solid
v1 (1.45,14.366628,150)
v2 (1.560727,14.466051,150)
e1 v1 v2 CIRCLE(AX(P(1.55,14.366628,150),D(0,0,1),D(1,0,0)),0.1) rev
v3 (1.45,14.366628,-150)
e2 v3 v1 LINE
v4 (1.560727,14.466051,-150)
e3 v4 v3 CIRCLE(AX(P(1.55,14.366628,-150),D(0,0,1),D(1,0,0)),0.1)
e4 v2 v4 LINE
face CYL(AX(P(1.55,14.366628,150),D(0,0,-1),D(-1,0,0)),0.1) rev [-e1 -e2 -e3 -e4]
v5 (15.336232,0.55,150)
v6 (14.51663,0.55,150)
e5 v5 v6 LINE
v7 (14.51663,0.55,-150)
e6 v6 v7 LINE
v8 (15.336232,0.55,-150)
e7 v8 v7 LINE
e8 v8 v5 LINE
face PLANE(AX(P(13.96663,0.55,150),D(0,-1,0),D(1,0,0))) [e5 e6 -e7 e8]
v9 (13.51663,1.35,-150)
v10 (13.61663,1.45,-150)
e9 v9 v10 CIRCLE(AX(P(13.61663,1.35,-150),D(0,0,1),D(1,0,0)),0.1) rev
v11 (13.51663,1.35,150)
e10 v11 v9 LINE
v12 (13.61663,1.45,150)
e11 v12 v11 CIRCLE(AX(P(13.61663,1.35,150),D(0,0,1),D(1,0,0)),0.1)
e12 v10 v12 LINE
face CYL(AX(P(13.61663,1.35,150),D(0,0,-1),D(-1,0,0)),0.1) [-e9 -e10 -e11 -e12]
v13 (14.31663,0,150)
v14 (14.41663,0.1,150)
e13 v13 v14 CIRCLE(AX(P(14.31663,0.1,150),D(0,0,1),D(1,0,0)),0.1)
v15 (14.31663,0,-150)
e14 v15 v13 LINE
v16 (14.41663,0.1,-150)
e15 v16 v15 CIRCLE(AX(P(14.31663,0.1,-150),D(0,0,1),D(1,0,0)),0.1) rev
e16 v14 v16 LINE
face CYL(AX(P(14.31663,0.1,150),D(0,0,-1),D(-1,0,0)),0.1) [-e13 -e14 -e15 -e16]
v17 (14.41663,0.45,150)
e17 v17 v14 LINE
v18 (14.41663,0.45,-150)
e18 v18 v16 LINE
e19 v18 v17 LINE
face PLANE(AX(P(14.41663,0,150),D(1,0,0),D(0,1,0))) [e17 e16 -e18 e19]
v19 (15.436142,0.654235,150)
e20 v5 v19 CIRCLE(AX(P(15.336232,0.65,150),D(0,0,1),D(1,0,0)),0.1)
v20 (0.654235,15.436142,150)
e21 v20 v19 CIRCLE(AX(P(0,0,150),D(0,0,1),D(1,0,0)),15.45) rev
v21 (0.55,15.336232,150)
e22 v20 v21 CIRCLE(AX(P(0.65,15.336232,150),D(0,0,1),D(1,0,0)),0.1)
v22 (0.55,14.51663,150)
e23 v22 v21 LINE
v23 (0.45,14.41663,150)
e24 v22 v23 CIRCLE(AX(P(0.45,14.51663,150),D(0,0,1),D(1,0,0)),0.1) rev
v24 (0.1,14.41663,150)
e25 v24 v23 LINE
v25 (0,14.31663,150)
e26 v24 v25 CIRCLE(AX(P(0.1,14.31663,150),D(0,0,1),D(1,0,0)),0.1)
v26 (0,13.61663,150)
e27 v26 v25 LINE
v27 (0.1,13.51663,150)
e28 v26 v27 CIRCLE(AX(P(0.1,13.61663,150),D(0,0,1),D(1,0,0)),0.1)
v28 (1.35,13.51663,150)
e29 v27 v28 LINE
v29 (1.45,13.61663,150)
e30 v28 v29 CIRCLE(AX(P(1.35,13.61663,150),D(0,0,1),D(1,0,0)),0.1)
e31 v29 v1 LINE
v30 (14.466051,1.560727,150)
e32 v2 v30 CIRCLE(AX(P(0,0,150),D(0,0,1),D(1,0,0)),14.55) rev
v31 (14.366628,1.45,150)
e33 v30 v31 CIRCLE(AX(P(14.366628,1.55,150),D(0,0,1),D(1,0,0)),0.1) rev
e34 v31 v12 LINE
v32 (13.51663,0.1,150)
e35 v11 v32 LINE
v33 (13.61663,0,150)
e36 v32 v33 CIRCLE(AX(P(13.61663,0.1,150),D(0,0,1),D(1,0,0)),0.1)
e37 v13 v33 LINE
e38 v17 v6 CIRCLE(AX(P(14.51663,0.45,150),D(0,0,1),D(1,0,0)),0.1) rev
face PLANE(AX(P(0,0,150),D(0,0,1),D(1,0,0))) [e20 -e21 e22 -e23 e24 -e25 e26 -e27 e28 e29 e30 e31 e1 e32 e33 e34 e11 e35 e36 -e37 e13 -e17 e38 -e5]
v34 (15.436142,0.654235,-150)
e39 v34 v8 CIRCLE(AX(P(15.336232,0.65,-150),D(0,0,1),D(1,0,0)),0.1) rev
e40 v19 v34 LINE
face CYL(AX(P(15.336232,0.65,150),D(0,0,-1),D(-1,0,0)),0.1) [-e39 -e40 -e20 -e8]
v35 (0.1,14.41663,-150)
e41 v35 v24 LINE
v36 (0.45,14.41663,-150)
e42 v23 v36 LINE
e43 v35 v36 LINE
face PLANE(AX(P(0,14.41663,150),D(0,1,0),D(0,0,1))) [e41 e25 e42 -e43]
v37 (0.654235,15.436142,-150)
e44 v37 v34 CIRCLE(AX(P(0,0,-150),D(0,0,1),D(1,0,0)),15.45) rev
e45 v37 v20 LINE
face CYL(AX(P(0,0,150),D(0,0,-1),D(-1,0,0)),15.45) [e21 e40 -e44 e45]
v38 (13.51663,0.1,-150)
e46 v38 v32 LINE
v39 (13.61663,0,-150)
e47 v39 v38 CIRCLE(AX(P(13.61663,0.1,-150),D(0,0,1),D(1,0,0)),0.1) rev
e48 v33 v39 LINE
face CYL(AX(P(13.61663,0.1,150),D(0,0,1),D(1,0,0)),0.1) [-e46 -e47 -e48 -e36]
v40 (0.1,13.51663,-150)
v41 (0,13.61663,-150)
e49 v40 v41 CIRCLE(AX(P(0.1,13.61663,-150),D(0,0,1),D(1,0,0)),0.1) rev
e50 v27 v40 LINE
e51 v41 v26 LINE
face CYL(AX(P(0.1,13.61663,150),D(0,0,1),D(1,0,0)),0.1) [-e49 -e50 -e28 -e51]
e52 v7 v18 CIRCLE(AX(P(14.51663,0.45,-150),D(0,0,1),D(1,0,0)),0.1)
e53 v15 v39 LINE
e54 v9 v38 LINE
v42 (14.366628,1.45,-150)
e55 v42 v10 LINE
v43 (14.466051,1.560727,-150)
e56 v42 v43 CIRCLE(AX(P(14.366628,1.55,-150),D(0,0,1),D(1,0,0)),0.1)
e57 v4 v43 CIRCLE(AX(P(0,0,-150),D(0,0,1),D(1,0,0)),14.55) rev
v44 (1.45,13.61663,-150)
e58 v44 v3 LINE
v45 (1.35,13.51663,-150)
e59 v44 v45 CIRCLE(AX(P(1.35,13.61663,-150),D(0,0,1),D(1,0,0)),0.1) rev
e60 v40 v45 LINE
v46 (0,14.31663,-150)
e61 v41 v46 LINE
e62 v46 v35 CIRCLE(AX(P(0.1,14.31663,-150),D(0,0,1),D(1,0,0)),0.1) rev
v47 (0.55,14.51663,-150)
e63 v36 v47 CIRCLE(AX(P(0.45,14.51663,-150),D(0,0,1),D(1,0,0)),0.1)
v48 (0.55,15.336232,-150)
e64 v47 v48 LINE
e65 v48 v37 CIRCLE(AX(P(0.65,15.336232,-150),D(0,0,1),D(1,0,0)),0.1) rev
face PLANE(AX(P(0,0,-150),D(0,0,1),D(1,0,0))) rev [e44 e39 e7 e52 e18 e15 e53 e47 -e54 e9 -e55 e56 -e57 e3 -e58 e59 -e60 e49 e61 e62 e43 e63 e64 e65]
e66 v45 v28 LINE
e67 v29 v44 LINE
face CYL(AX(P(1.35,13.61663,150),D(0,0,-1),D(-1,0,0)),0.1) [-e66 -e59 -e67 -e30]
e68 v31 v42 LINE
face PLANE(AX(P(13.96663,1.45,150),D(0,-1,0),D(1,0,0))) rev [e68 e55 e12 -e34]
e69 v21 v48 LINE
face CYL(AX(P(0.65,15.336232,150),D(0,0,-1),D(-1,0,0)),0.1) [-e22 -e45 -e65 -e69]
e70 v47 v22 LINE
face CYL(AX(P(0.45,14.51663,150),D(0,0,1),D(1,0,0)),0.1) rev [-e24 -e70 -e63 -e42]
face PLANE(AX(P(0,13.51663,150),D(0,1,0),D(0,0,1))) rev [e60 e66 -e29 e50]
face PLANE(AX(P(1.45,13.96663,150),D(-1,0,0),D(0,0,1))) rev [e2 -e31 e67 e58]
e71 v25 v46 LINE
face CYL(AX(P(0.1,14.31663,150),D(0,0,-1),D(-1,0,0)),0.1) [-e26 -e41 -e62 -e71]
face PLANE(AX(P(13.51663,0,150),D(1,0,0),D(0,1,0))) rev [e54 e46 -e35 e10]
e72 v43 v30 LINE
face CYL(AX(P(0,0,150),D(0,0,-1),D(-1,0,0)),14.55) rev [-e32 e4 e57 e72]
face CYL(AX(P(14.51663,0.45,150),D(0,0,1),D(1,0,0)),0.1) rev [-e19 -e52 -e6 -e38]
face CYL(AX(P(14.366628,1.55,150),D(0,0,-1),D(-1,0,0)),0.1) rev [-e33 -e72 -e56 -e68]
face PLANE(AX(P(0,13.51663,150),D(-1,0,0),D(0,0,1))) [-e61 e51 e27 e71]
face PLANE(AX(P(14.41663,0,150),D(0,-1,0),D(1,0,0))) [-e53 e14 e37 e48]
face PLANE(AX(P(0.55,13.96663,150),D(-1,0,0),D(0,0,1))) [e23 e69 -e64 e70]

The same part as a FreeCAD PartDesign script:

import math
import FreeCAD as App
import Part
import Sketcher
from FreeCAD import Vector


def edges_at(feature, points):
    """Names of the edges that pass closest to the given points."""
    edges = feature.Shape.Edges
    near = lambda p: min(range(len(edges)), key=lambda i: edges[i].distToShape(Part.Vertex(*p))[0])
    return sorted({f"Edge{near(p) + 1}" for p in points})

doc = App.newDocument("Part")
body = doc.addObject("PartDesign::Body", "Body")

sketch1 = body.newObject("Sketcher::SketchObject", "Sketch")
sketch1.AttachmentSupport = (doc.getObject("XY_Plane"), [""])
sketch1.MapMode = "FlatFace"
sketch1.addGeometry([
    Part.LineSegment(Vector(14.41663, 0, 0), Vector(14.41663, 0.55, 0)),
    Part.LineSegment(Vector(14.41663, 0.55, 0), Vector(15.440207, 0.55, 0)),
    Part.ArcOfCircle(Part.Circle(Vector(0, 0, 0), Vector(0, 0, 1), 15.45), math.radians(2.040087), math.radians(87.959913)),
    Part.LineSegment(Vector(0.55, 15.440207, 0), Vector(0.55, 14.41663, 0)),
    Part.LineSegment(Vector(0.55, 14.41663, 0), Vector(0, 14.41663, 0)),
    Part.LineSegment(Vector(0, 14.41663, 0), Vector(0, 13.51663, 0)),
    Part.LineSegment(Vector(0, 13.51663, 0), Vector(1.45, 13.51663, 0)),
    Part.LineSegment(Vector(1.45, 13.51663, 0), Vector(1.45, 14.477569, 0)),
    Part.ArcOfCircle(Part.Circle(Vector(0, 0, 0), Vector(0, 0, 1), 14.55), math.radians(5.719382), math.radians(84.280618)),
    Part.LineSegment(Vector(14.477569, 1.45, 0), Vector(13.51663, 1.45, 0)),
    Part.LineSegment(Vector(13.51663, 1.45, 0), Vector(13.51663, 0, 0)),
    Part.LineSegment(Vector(13.51663, 0, 0), Vector(14.41663, 0, 0)),
], False)
sketch1.addConstraint([
    Sketcher.Constraint("Coincident", 0, 2, 1, 1),
    Sketcher.Constraint("Coincident", 1, 2, 2, 1),
    Sketcher.Constraint("Coincident", 2, 2, 3, 1),
    Sketcher.Constraint("Coincident", 3, 2, 4, 1),
    Sketcher.Constraint("Coincident", 4, 2, 5, 1),
    Sketcher.Constraint("Coincident", 5, 2, 6, 1),
    Sketcher.Constraint("Coincident", 6, 2, 7, 1),
    Sketcher.Constraint("Coincident", 7, 2, 8, 2),
    Sketcher.Constraint("Coincident", 8, 1, 9, 1),
    Sketcher.Constraint("Coincident", 9, 2, 10, 1),
    Sketcher.Constraint("Coincident", 10, 2, 11, 1),
    Sketcher.Constraint("Coincident", 11, 2, 0, 1),
    Sketcher.Constraint("Vertical", 0),
    Sketcher.Constraint("Horizontal", 1),
    Sketcher.Constraint("Vertical", 3),
    Sketcher.Constraint("Horizontal", 4),
    Sketcher.Constraint("Vertical", 5),
    Sketcher.Constraint("Horizontal", 6),
    Sketcher.Constraint("Vertical", 7),
    Sketcher.Constraint("Horizontal", 9),
    Sketcher.Constraint("Vertical", 10),
    Sketcher.Constraint("Horizontal", 11),
    Sketcher.Constraint("Coincident", 2, 3, -1, 1),
    Sketcher.Constraint("Coincident", 8, 3, -1, 1),
    Sketcher.Constraint("PointOnObject", 4, 2, -2),
    Sketcher.Constraint("PointOnObject", 10, 2, -1),
    Sketcher.Constraint("Equal", 4, 0),
    Sketcher.Constraint("Equal", 1, 3),
    Sketcher.Constraint("Equal", 11, 5),
    Sketcher.Constraint("Equal", 9, 7),
    Sketcher.Constraint("Radius", 2, 15.45),
    Sketcher.Constraint("Radius", 8, 14.55),
    Sketcher.Constraint("DistanceX", 11, 1, 11, 2, 0.9),
    Sketcher.Constraint("DistanceX", 4, 2, 4, 1, 0.55),
    Sketcher.Constraint("DistanceX", 6, 1, 6, 2, 1.45),
    Sketcher.Constraint("DistanceX", 9, 2, 9, 1, 0.960939),
])
pad1 = body.newObject("PartDesign::Pad", "Pad")
pad1.Profile = sketch1
pad1.Length = 300
pad1.Midplane = True
doc.recompute()

fillet = body.newObject("PartDesign::Fillet", "Fillet")
fillet.Base = (pad1, edges_at(pad1, [
    (13.517, 1.45, 0),
    (14.478, 1.45, 0),
    (1.45, 14.478, 0),
    (1.45, 13.517, 0),
    (0, 13.517, 0),
    (0, 14.417, 0),
    (0.55, 14.417, 0),
    (0.55, 15.44, 0),
    (15.44, 0.55, 0),
    (14.417, 0.55, 0),
    (14.417, 0, 0),
    (13.517, 0, 0),
]))
fillet.Radius = 0.1

doc.recompute()
